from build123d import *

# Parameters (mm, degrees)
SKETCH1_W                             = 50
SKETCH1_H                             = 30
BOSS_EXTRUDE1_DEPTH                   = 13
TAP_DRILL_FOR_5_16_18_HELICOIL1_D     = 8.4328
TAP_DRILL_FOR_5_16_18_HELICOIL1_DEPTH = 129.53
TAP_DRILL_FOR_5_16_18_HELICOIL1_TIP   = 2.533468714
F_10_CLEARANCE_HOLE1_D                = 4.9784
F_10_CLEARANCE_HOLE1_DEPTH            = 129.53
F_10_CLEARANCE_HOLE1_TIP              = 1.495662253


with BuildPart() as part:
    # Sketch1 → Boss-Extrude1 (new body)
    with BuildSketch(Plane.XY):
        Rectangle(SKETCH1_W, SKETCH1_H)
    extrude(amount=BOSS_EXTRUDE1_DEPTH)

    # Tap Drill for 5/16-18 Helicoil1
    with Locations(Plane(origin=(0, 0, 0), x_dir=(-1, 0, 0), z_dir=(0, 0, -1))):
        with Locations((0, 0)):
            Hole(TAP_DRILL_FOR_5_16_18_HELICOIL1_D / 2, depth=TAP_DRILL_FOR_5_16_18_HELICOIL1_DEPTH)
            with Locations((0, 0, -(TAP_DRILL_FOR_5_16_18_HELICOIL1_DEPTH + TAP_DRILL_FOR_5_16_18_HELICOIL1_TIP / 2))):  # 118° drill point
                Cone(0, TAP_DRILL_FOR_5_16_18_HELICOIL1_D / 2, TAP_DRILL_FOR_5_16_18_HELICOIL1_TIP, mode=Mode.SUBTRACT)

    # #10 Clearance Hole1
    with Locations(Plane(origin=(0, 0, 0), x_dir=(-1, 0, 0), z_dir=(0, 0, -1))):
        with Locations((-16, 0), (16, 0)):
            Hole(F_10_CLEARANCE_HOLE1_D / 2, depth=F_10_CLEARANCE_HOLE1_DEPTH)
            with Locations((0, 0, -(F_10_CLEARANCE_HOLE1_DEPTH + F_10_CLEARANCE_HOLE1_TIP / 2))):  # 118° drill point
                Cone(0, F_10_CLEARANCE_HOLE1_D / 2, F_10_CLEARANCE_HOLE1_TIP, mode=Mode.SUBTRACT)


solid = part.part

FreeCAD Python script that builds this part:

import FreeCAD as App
import Part
import Sketcher

doc = App.newDocument("Part")
body = doc.addObject("PartDesign::Body", "Body")

# Sketch on XY plane
sketch1 = body.newObject("Sketcher::SketchObject", "Sketch")
sketch1.AttachmentSupport = (doc.getObject("XY_Plane"), [""])
sketch1.MapMode = "FlatFace"
sketch1.addGeometry([
    Part.LineSegment(App.Vector(-25, 15, 0), App.Vector(-25, -15, 0)),
    Part.LineSegment(App.Vector(-25, -15, 0), App.Vector(25, -15, 0)),
    Part.LineSegment(App.Vector(25, -15, 0), App.Vector(25, 15, 0)),
    Part.LineSegment(App.Vector(25, 15, 0), App.Vector(-25, 15, 0)),
], False)
sketch1.addConstraint([
    Sketcher.Constraint("Coincident", 0, 2, 1, 1),
    Sketcher.Constraint("Coincident", 1, 2, 2, 1),
    Sketcher.Constraint("Coincident", 2, 2, 3, 1),
    Sketcher.Constraint("Coincident", 3, 2, 0, 1),
    Sketcher.Constraint("Vertical", 0),
    Sketcher.Constraint("Horizontal", 1),
    Sketcher.Constraint("Vertical", 2),
    Sketcher.Constraint("Horizontal", 3),
    Sketcher.Constraint("Symmetric", 0, 2, 2, 2, -1, 1),
    Sketcher.Constraint("DistanceX", 1, 1, 1, 2, 50.0),
    Sketcher.Constraint("DistanceY", 0, 2, 0, 1, 30.0),
])
pad1 = body.newObject("PartDesign::Pad", "Pad")
pad1.Profile = sketch1
pad1.Length = 13

# Sketch on XY plane
sketch2 = body.newObject("Sketcher::SketchObject", "Sketch001")
sketch2.AttachmentSupport = (doc.getObject("XY_Plane"), [""])
sketch2.MapMode = "FlatFace"
sketch2.addGeometry(Part.Circle(App.Vector(0, 0, 0), App.Vector(0, 0, 1), 4.2), False)
sketch2.addConstraint([
    Sketcher.Constraint("Coincident", 0, 3, -1, 1),
    Sketcher.Constraint("Diameter", 0, 8.4328),
])
doc.recompute()
hole = body.newObject("PartDesign::Hole", "Hole")
hole.Profile = sketch2
hole.ThreadType = "None"
hole.Diameter = 8.4328
hole.DepthType = "Dimension"
hole.Depth = 129.53
hole.DrillPoint = "Angled"
hole.DrillPointAngle = 118
hole.Reversed = True

# Sketch on XY plane
sketch3 = body.newObject("Sketcher::SketchObject", "Sketch002")
sketch3.AttachmentSupport = (doc.getObject("XY_Plane"), [""])
sketch3.MapMode = "FlatFace"
sketch3.addGeometry([
    Part.Circle(App.Vector(16, 0, 0), App.Vector(0, 0, 1), 2.5),
    Part.Circle(App.Vector(-16, 0, 0), App.Vector(0, 0, 1), 2.5),
], False)
sketch3.addConstraint([
    Sketcher.Constraint("Equal", 0, 1),
    Sketcher.Constraint("Symmetric", 0, 3, 1, 3, -1, 1),
    Sketcher.Constraint("PointOnObject", 0, 3, -1),
    Sketcher.Constraint("DistanceX", -1, 1, 0, 3, 16.0),
    Sketcher.Constraint("Diameter", 0, 4.9784),
])
doc.recompute()
hole2 = body.newObject("PartDesign::Hole", "Hole001")
hole2.Profile = sketch3
hole2.ThreadType = "None"
hole2.Diameter = 4.9784
hole2.DepthType = "Dimension"
hole2.Depth = 129.53
hole2.DrillPoint = "Angled"
hole2.DrillPointAngle = 118
hole2.Reversed = True

doc.recompute()
